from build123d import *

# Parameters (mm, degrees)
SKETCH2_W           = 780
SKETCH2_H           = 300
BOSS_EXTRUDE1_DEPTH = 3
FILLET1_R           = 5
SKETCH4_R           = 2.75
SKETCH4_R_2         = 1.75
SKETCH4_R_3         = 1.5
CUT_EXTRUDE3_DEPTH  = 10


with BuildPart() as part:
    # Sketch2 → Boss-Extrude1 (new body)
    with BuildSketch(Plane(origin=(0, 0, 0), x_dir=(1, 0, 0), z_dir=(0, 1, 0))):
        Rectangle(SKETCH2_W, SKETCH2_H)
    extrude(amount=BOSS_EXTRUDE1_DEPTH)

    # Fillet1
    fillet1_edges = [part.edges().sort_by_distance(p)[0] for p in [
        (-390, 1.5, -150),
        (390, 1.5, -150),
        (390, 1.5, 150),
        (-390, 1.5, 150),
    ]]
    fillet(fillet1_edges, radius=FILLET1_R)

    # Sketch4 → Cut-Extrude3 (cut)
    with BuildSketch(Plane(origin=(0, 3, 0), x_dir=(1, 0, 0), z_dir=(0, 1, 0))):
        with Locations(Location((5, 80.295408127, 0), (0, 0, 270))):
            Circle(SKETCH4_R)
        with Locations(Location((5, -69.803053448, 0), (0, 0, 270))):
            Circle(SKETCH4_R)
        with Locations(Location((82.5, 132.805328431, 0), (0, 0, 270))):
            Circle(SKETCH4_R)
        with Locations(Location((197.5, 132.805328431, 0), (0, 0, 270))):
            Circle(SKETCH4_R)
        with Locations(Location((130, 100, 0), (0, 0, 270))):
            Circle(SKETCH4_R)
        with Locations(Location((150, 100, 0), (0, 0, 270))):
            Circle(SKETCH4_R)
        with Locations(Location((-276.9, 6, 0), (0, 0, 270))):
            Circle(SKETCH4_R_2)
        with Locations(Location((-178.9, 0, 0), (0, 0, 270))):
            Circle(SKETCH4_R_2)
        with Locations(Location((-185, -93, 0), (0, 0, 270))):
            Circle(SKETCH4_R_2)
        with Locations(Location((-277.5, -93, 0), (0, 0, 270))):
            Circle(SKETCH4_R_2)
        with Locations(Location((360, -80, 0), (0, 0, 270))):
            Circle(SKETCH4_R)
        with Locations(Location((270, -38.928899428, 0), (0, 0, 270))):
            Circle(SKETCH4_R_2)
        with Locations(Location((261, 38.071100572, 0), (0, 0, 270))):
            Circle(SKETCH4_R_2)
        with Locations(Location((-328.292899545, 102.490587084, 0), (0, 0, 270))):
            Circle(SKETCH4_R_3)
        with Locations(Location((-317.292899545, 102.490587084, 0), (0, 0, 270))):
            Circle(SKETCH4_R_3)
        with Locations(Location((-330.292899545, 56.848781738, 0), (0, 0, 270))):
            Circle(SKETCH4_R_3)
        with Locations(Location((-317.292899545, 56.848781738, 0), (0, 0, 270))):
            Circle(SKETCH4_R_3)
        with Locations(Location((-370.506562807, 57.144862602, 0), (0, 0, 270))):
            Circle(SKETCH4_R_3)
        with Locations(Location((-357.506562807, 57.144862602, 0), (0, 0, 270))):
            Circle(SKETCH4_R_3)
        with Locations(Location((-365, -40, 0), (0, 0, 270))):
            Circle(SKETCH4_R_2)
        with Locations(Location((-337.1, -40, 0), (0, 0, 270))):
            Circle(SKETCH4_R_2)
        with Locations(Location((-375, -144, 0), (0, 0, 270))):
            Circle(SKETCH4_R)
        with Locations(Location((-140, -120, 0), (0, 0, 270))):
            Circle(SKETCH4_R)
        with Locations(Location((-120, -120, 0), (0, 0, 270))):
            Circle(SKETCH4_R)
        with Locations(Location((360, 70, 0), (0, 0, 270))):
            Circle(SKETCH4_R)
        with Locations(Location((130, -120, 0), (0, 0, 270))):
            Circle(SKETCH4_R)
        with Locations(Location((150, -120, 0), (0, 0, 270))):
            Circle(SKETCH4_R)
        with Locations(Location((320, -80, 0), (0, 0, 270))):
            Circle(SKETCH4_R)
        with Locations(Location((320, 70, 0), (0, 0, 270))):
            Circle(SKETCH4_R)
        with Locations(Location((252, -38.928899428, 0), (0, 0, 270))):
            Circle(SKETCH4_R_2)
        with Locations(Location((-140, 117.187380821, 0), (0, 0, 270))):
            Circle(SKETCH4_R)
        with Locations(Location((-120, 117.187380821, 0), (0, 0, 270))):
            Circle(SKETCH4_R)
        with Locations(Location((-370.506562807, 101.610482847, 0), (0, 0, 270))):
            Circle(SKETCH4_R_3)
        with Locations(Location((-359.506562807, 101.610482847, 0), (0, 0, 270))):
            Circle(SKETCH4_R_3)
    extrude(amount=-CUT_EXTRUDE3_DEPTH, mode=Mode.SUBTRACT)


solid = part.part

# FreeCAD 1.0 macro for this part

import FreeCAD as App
import Part
import Sketcher
Q = App.Units.Quantity


def edges_at(feature, points):
    """Names of the edges that pass closest to the given points."""
    edges = feature.Shape.Edges
    near = lambda p: min(range(len(edges)), key=lambda i: edges[i].distToShape(Part.Vertex(*p))[0])
    return sorted({f"Edge{near(p) + 1}" for p in points})


def add_polygon(sketch, points):
    """Adds a closed chain of lines whose ends are joined by coincident constraints."""
    first, n = sketch.GeometryCount, len(points)
    for a, b in zip(points, points[1:] + points[:1]):
        sketch.addGeometry(Part.LineSegment(App.Vector(*a, 0), App.Vector(*b, 0)), False)
    for i in range(n):
        sketch.addConstraint(Sketcher.Constraint("Coincident", first + i, 2, first + (i + 1) % n, 1))

doc = App.newDocument("Part")
params = doc.addObject("Spreadsheet::Sheet", "Params")
for row, (alias, value) in enumerate([
    ("sketch1_width", "780 mm"),
    ("sketch1_height", "300 mm"),
    ("pad1_length", "3 mm"),
    ("fillet_radius", "5 mm"),
    ("sketch2_diameter", "3 mm"),
    ("sketch2_diameter2", "5.5 mm"),
    ("sketch2_diameter3", "3.5 mm"),
    ("pocket1_length", "10 mm"),
], start=1):
    params.set(f"A{row}", alias)
    params.set(f"B{row}", "=" + value)
    params.setAlias(f"B{row}", alias)

body = doc.addObject("PartDesign::Body", "Body")

sketch1 = doc.addObject("Sketcher::SketchObject", "Sketch")
body.addObject(sketch1)
sketch1.AttachmentSupport = (doc.XZ_Plane, [""])
sketch1.MapMode = "FlatFace"
add_polygon(sketch1, [(-390, -150), (-390, 150), (390, 150), (390, -150)])
sketch1.addConstraint([
    Sketcher.Constraint("Vertical", 0),
    Sketcher.Constraint("Horizontal", 1),
    Sketcher.Constraint("Vertical", 2),
    Sketcher.Constraint("Horizontal", 3),
    Sketcher.Constraint("Symmetric", 0, 2, 2, 2, -1, 1),
    Sketcher.Constraint("DistanceX", 1, 1, 1, 2, Q("780 mm")),
    Sketcher.Constraint("DistanceY", 0, 1, 0, 2, Q("300 mm")),
])
sketch1.setExpression("Constraints[9]", "Params.sketch1_width")
sketch1.setExpression("Constraints[10]", "Params.sketch1_height")
pad1 = doc.addObject("PartDesign::Pad", "Pad")
body.addObject(pad1)
pad1.Profile = sketch1
pad1.setExpression("Length", "Params.pad1_length")
pad1.Reversed = True
doc.recompute()

fillet = doc.addObject("PartDesign::Fillet", "Fillet")
body.addObject(fillet)
fillet.Base = (pad1, edges_at(pad1, [
    (-390, 1.5, -150),
    (390, 1.5, -150),
    (390, 1.5, 150),
    (-390, 1.5, 150),
]))
fillet.setExpression("Radius", "Params.fillet_radius")

sketch2 = doc.addObject("Sketcher::SketchObject", "Sketch001")
body.addObject(sketch2)
sketch2.AttachmentSupport = (doc.XZ_Plane, [""])
sketch2.MapMode = "FlatFace"
sketch2.AttachmentOffset = App.Placement(App.Vector(0, 0, -3), App.Rotation())
sketch2.addGeometry([
    Part.Circle(App.Vector(5, -80.3, 0), App.Vector(0, 0, 1), 2.8),
    Part.Circle(App.Vector(5, 69.8, 0), App.Vector(0, 0, 1), 2.8),
    Part.Circle(App.Vector(82.5, -132.8, 0), App.Vector(0, 0, 1), 2.8),
    Part.Circle(App.Vector(197.5, -132.8, 0), App.Vector(0, 0, 1), 2.8),
    Part.Circle(App.Vector(130, -100, 0), App.Vector(0, 0, 1), 2.8),
    Part.Circle(App.Vector(150, -100, 0), App.Vector(0, 0, 1), 2.8),
    Part.Circle(App.Vector(-276.9, -6, 0), App.Vector(0, 0, 1), 1.8),
    Part.Circle(App.Vector(-178.9, 0, 0), App.Vector(0, 0, 1), 1.8),
    Part.Circle(App.Vector(-185, 93, 0), App.Vector(0, 0, 1), 1.8),
    Part.Circle(App.Vector(-277.5, 93, 0), App.Vector(0, 0, 1), 1.8),
    Part.Circle(App.Vector(360, 80, 0), App.Vector(0, 0, 1), 2.8),
    Part.Circle(App.Vector(270, 38.9, 0), App.Vector(0, 0, 1), 1.8),
    Part.Circle(App.Vector(261, -38.1, 0), App.Vector(0, 0, 1), 1.8),
    Part.Circle(App.Vector(-328.3, -102.5, 0), App.Vector(0, 0, 1), 1.5),
    Part.Circle(App.Vector(-317.3, -102.5, 0), App.Vector(0, 0, 1), 1.5),
    Part.Circle(App.Vector(-330.3, -56.8, 0), App.Vector(0, 0, 1), 1.5),
    Part.Circle(App.Vector(-317.3, -56.8, 0), App.Vector(0, 0, 1), 1.5),
    Part.Circle(App.Vector(-370.5, -57.1, 0), App.Vector(0, 0, 1), 1.5),
    Part.Circle(App.Vector(-357.5, -57.1, 0), App.Vector(0, 0, 1), 1.5),
    Part.Circle(App.Vector(-365, 40, 0), App.Vector(0, 0, 1), 1.8),
    Part.Circle(App.Vector(-337.1, 40, 0), App.Vector(0, 0, 1), 1.8),
    Part.Circle(App.Vector(-375, 144, 0), App.Vector(0, 0, 1), 2.8),
    Part.Circle(App.Vector(-140, 120, 0), App.Vector(0, 0, 1), 2.8),
    Part.Circle(App.Vector(-120, 120, 0), App.Vector(0, 0, 1), 2.8),
    Part.Circle(App.Vector(360, -70, 0), App.Vector(0, 0, 1), 2.8),
    Part.Circle(App.Vector(130, 120, 0), App.Vector(0, 0, 1), 2.8),
    Part.Circle(App.Vector(150, 120, 0), App.Vector(0, 0, 1), 2.8),
    Part.Circle(App.Vector(320, 80, 0), App.Vector(0, 0, 1), 2.8),
    Part.Circle(App.Vector(320, -70, 0), App.Vector(0, 0, 1), 2.8),
    Part.Circle(App.Vector(252, 38.9, 0), App.Vector(0, 0, 1), 1.8),
    Part.Circle(App.Vector(-140, -117.2, 0), App.Vector(0, 0, 1), 2.8),
    Part.Circle(App.Vector(-120, -117.2, 0), App.Vector(0, 0, 1), 2.8),
    Part.Circle(App.Vector(-370.5, -101.6, 0), App.Vector(0, 0, 1), 1.5),
    Part.Circle(App.Vector(-359.5, -101.6, 0), App.Vector(0, 0, 1), 1.5),
], False)
sketch2.addConstraint([
    Sketcher.Constraint("Equal", 0, 1),
    Sketcher.Constraint("Equal", 1, 2),
    Sketcher.Constraint("Equal", 2, 3),
    Sketcher.Constraint("Equal", 3, 4),
    Sketcher.Constraint("Equal", 4, 5),
    Sketcher.Constraint("Equal", 6, 7),
    Sketcher.Constraint("Equal", 7, 8),
    Sketcher.Constraint("Equal", 8, 9),
    Sketcher.Constraint("Equal", 5, 10),
    Sketcher.Constraint("Equal", 9, 11),
    Sketcher.Constraint("Equal", 11, 12),
    Sketcher.Constraint("Equal", 13, 14),
    Sketcher.Constraint("Equal", 14, 15),
    Sketcher.Constraint("Equal", 15, 16),
    Sketcher.Constraint("Equal", 16, 17),
    Sketcher.Constraint("Equal", 17, 18),
    Sketcher.Constraint("Equal", 12, 19),
    Sketcher.Constraint("Equal", 19, 20),
    Sketcher.Constraint("Equal", 10, 21),
    Sketcher.Constraint("Equal", 21, 22),
    Sketcher.Constraint("Equal", 22, 23),
    Sketcher.Constraint("Equal", 23, 24),
    Sketcher.Constraint("Equal", 24, 25),
    Sketcher.Constraint("Equal", 25, 26),
    Sketcher.Constraint("Equal", 26, 27),
    Sketcher.Constraint("Equal", 27, 28),
    Sketcher.Constraint("Equal", 20, 29),
    Sketcher.Constraint("Equal", 28, 30),
    Sketcher.Constraint("Equal", 30, 31),
    Sketcher.Constraint("Equal", 18, 32),
    Sketcher.Constraint("Equal", 32, 33),
    Sketcher.Constraint("PointOnObject", 7, 3, -1),
    Sketcher.Constraint("Horizontal", 2, 3, 3, 3),
    Sketcher.Constraint("Horizontal", 4, 3, 5, 3),
    Sketcher.Constraint("Horizontal", 8, 3, 9, 3),
    Sketcher.Constraint("Horizontal", 13, 3, 14, 3),
    Sketcher.Constraint("Horizontal", 15, 3, 16, 3),
    Sketcher.Constraint("Horizontal", 17, 3, 18, 3),
    Sketcher.Constraint("Horizontal", 19, 3, 20, 3),
    Sketcher.Constraint("Horizontal", 22, 3, 23, 3),
    Sketcher.Constraint("Horizontal", 23, 3, 25, 3),
    Sketcher.Constraint("Horizontal", 25, 3, 26, 3),
    Sketcher.Constraint("Horizontal", 10, 3, 27, 3),
    Sketcher.Constraint("Horizontal", 24, 3, 28, 3),
    Sketcher.Constraint("Horizontal", 11, 3, 29, 3),
    Sketcher.Constraint("Horizontal", 30, 3, 31, 3),
    Sketcher.Constraint("Horizontal", 32, 3, 33, 3),
    Sketcher.Constraint("Vertical", 0, 3, 1, 3),
    Sketcher.Constraint("Vertical", 14, 3, 16, 3),
    Sketcher.Constraint("Vertical", 10, 3, 24, 3),
    Sketcher.Constraint("Vertical", 4, 3, 25, 3),
    Sketcher.Constraint("Vertical", 5, 3, 26, 3),
    Sketcher.Constraint("Vertical", 27, 3, 28, 3),
    Sketcher.Constraint("Vertical", 22, 3, 30, 3),
    Sketcher.Constraint("Vertical", 23, 3, 31, 3),
    Sketcher.Constraint("Vertical", 17, 3, 32, 3),
    Sketcher.Constraint("Diameter", 13, Q("3 mm")),
    Sketcher.Constraint("Diameter", 0, Q("5.5 mm")),
    Sketcher.Constraint("Diameter", 6, Q("3.5 mm")),
    Sketcher.Constraint("DistanceX", -1, 1, 0, 3, Q("5 mm")),
    Sketcher.Constraint("DistanceX", -1, 1, 4, 3, Q("130 mm")),
    Sketcher.Constraint("DistanceY", 4, 3, -1, 1, Q("100 mm")),
    Sketcher.Constraint("DistanceX", -1, 1, 5, 3, Q("150 mm")),
    Sketcher.Constraint("DistanceY", 6, 3, -1, 1, Q("6 mm")),
    Sketcher.Constraint("DistanceX", 8, 3, -1, 1, Q("185 mm")),
    Sketcher.Constraint("DistanceY", -1, 1, 8, 3, Q("93 mm")),
    Sketcher.Constraint("DistanceX", -1, 1, 10, 3, Q("360 mm")),
    Sketcher.Constraint("DistanceY", -1, 1, 10, 3, Q("80 mm")),
    Sketcher.Constraint("DistanceX", -1, 1, 11, 3, Q("270 mm")),
    Sketcher.Constraint("DistanceX", -1, 1, 12, 3, Q("261 mm")),
    Sketcher.Constraint("DistanceX", 19, 3, -1, 1, Q("365 mm")),
    Sketcher.Constraint("DistanceY", -1, 1, 19, 3, Q("40 mm")),
    Sketcher.Constraint("DistanceX", 21, 3, -1, 1, Q("375 mm")),
    Sketcher.Constraint("DistanceY", -1, 1, 21, 3, Q("144 mm")),
    Sketcher.Constraint("DistanceX", 22, 3, -1, 1, Q("140 mm")),
    Sketcher.Constraint("DistanceY", -1, 1, 22, 3, Q("120 mm")),
    Sketcher.Constraint("DistanceX", 23, 3, -1, 1, Q("120 mm")),
    Sketcher.Constraint("DistanceY", 24, 3, -1, 1, Q("70 mm")),
    Sketcher.Constraint("DistanceX", -1, 1, 27, 3, Q("320 mm")),
    Sketcher.Constraint("DistanceX", -1, 1, 29, 3, Q("252 mm")),
    Sketcher.Constraint("DistanceX", 2, 3, 3, 3, Q("115 mm")),
    Sketcher.Constraint("DistanceX", 6, 3, 7, 3, Q("98 mm")),
    Sketcher.Constraint("DistanceY", 12, 3, 11, 3, Q("77 mm")),
    Sketcher.Constraint("DistanceX", 13, 3, 14, 3, Q("11 mm")),
    Sketcher.Constraint("DistanceX", 15, 3, 13, 3, Q("2 mm")),
    Sketcher.Constraint("DistanceX", 17, 3, 18, 3, Q("13 mm")),
    Sketcher.Constraint("DistanceX", 32, 3, 33, 3, Q("11 mm")),
    Sketcher.Constraint("DistanceX", -1, 1, 2, 3, Q("82.5 mm")),
    Sketcher.Constraint("DistanceX", 6, 3, -1, 1, Q("276.9 mm")),
    Sketcher.Constraint("DistanceX", 9, 3, -1, 1, Q("277.5 mm")),
    Sketcher.Constraint("DistanceX", 20, 3, -1, 1, Q("337.1 mm")),
    Sketcher.Constraint("DistanceY", -1, 1, 11, 3, Q("38.928899 mm")),
    Sketcher.Constraint("DistanceX", 13, 3, -1, 1, Q("328.2929 mm")),
    Sketcher.Constraint("DistanceY", 30, 3, 16, 3, Q("60.338599 mm")),
    Sketcher.Constraint("DistanceY", 32, 3, 15, 3, Q("44.761701 mm")),
    Sketcher.Constraint("DistanceY", 0, 3, -1, 1, Q("80.295408 mm")),
    Sketcher.Constraint("DistanceY", 2, 3, -1, 1, Q("132.805328 mm")),
    Sketcher.Constraint("DistanceY", 15, 3, -1, 1, Q("56.848782 mm")),
    Sketcher.Constraint("DistanceY", 0, 3, 1, 3, Q("150.098462 mm")),
    Sketcher.Constraint("DistanceY", 13, 3, 0, 3, Q("22.195179 mm")),
    Sketcher.Constraint("DistanceY", 17, 3, 15, 3, Q("0.296081 mm")),
    Sketcher.Constraint("DistanceX", 17, 3, -1, 1, Q("370.506563 mm")),
])
sketch2.setExpression("Constraints[56]", "Params.sketch2_diameter")
sketch2.setExpression("Constraints[57]", "Params.sketch2_diameter2")
sketch2.setExpression("Constraints[58]", "Params.sketch2_diameter3")
pocket1 = doc.addObject("PartDesign::Pocket", "Pocket")
body.addObject(pocket1)
pocket1.Profile = sketch2
pocket1.setExpression("Length", "Params.pocket1_length")
pocket1.Reversed = True

doc.recompute()
